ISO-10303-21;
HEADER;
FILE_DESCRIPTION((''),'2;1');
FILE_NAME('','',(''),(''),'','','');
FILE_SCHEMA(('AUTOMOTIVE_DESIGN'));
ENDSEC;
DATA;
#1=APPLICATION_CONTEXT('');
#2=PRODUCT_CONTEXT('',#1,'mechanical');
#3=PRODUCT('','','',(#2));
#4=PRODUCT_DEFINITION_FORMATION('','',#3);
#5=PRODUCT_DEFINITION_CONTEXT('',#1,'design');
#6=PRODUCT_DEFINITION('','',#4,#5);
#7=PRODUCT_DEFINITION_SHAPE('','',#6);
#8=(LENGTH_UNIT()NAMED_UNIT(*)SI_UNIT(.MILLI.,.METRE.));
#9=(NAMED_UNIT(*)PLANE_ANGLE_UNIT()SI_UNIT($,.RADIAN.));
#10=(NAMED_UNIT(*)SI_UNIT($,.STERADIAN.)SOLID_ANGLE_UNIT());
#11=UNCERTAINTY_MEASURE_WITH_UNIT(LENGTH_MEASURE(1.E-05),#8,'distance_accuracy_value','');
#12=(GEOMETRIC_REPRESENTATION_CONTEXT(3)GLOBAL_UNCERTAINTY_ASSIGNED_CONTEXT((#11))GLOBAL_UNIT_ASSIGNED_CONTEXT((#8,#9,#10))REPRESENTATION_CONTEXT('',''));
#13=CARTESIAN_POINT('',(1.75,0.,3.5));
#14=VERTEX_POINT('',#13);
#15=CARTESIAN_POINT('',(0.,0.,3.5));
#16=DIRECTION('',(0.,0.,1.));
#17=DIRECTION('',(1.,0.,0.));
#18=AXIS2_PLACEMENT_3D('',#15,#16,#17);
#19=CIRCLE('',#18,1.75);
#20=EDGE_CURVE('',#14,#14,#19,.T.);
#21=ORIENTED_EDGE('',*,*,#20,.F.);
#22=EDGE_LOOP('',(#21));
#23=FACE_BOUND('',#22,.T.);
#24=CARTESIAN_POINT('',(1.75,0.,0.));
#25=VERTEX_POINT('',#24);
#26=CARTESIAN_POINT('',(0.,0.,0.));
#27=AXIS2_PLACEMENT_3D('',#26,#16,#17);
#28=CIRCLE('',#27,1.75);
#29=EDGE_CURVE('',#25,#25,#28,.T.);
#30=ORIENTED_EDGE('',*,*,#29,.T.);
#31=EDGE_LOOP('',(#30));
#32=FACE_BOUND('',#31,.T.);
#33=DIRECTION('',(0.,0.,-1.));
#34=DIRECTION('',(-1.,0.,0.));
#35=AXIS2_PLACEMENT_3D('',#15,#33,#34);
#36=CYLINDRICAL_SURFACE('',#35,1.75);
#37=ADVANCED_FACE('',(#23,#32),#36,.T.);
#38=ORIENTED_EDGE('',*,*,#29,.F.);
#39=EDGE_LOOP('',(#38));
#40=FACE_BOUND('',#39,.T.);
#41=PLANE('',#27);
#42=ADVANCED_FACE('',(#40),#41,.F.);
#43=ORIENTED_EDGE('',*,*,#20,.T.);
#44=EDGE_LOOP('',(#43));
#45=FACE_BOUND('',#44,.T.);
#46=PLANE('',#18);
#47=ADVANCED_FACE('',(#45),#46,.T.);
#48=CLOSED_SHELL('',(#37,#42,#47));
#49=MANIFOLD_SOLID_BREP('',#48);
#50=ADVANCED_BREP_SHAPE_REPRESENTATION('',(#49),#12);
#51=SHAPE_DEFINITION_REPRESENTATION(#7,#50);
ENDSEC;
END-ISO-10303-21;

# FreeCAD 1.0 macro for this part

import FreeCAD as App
import Part
import Sketcher

V = App.Vector
Q = App.Units.Quantity

doc = App.newDocument("Part")
body = doc.addObject("PartDesign::Body", "Body")

# Sketch on XY plane
sketch1 = body.newObject("Sketcher::SketchObject", "Sketch")
sketch1.AttachmentSupport = (doc.getObject("XY_Plane"), [""])
sketch1.MapMode = "FlatFace"
sketch1.addGeometry(Part.Circle(V(0, 0, 0), V(0, 0, 1), 1.8), False)
sketch1.addConstraint(Sketcher.Constraint("Coincident", 0, 3, -1, 1))
sketch1.addConstraint(Sketcher.Constraint("Diameter", 0, Q("3.5 mm")))
pad1 = body.newObject("PartDesign::Pad", "Pad")
pad1.Profile = sketch1
pad1.Length = 3.5

doc.recompute()
